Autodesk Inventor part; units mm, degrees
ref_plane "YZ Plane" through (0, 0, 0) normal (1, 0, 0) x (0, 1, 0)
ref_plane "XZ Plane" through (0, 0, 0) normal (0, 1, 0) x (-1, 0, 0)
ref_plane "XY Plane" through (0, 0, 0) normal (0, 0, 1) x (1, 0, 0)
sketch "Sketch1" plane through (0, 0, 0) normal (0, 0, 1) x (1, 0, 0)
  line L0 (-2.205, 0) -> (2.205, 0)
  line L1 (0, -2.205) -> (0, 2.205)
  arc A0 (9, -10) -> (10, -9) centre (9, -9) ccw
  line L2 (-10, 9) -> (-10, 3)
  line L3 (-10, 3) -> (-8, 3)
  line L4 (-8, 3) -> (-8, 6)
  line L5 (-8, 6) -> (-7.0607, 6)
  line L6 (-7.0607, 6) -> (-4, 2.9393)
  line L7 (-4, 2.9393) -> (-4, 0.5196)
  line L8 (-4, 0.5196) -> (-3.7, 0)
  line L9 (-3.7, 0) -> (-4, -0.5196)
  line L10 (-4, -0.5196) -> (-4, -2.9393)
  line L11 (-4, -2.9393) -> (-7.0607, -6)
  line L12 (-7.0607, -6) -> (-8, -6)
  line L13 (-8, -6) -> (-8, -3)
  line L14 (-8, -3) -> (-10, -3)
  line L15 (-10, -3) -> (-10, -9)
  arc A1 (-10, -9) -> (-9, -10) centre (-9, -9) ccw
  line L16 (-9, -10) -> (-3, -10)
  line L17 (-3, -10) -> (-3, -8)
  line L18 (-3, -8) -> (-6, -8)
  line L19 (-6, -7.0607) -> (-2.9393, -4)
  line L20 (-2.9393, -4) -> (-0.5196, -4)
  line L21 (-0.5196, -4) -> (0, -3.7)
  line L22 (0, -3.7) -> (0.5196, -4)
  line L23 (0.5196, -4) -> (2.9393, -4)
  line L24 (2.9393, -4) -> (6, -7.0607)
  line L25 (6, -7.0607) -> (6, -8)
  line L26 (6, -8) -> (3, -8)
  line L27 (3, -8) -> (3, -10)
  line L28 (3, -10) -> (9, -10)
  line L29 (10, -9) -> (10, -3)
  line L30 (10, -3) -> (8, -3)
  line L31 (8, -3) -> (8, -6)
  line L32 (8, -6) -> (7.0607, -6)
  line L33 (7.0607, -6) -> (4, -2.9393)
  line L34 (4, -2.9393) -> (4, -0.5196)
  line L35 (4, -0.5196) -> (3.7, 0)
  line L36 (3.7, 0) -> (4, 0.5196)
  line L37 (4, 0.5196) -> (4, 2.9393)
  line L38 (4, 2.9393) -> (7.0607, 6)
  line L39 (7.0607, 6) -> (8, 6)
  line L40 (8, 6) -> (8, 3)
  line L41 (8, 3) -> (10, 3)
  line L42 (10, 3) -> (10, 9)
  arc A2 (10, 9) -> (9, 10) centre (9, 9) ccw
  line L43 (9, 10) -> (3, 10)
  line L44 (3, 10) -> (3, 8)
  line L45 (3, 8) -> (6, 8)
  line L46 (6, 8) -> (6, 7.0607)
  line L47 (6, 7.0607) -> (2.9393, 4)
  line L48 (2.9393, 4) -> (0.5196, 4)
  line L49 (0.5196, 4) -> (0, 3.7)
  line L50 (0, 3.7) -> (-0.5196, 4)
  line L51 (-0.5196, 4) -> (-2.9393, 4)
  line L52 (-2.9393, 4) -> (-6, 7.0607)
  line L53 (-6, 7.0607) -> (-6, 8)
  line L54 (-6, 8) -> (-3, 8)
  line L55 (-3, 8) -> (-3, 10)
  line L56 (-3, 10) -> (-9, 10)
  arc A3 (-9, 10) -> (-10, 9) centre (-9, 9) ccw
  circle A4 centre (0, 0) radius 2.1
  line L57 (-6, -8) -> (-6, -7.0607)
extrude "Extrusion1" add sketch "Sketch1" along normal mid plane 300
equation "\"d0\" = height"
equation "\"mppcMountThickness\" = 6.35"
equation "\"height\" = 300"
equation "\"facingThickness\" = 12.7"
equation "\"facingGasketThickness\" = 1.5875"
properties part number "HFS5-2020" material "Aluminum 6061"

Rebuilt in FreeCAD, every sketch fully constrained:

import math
import FreeCAD as App
import Part
import Sketcher
from FreeCAD import Vector
Q = App.Units.Quantity

doc = App.newDocument("Part")
body = doc.addObject("PartDesign::Body", "Body")

sketch1 = body.newObject("Sketcher::SketchObject", "Sketch")
sketch1.AttachmentSupport = (doc.getObject("XY_Plane"), [""])
sketch1.MapMode = "FlatFace"
sketch1.addGeometry([
    Part.LineSegment(Vector(3, -10, 0), Vector(9, -10, 0)),
    Part.ArcOfCircle(Part.Circle(Vector(9, -9, 0), Vector(0, 0, 1), 1), math.radians(-90), math.radians(0)),
    Part.LineSegment(Vector(10, -9, 0), Vector(10, -3, 0)),
    Part.LineSegment(Vector(10, -3, 0), Vector(8, -3, 0)),
    Part.LineSegment(Vector(8, -3, 0), Vector(8, -6, 0)),
    Part.LineSegment(Vector(8, -6, 0), Vector(7.1, -6, 0)),
    Part.LineSegment(Vector(7.1, -6, 0), Vector(4, -2.9, 0)),
    Part.LineSegment(Vector(4, -2.9, 0), Vector(4, -0.5, 0)),
    Part.LineSegment(Vector(4, -0.5, 0), Vector(3.7, 0, 0)),
    Part.LineSegment(Vector(3.7, 0, 0), Vector(4, 0.5, 0)),
    Part.LineSegment(Vector(4, 0.5, 0), Vector(4, 2.9, 0)),
    Part.LineSegment(Vector(4, 2.9, 0), Vector(7.1, 6, 0)),
    Part.LineSegment(Vector(7.1, 6, 0), Vector(8, 6, 0)),
    Part.LineSegment(Vector(8, 6, 0), Vector(8, 3, 0)),
    Part.LineSegment(Vector(8, 3, 0), Vector(10, 3, 0)),
    Part.LineSegment(Vector(10, 3, 0), Vector(10, 9, 0)),
    Part.ArcOfCircle(Part.Circle(Vector(9, 9, 0), Vector(0, 0, 1), 1), math.radians(0), math.radians(90)),
    Part.LineSegment(Vector(9, 10, 0), Vector(3, 10, 0)),
    Part.LineSegment(Vector(3, 10, 0), Vector(3, 8, 0)),
    Part.LineSegment(Vector(3, 8, 0), Vector(6, 8, 0)),
    Part.LineSegment(Vector(6, 8, 0), Vector(6, 7.1, 0)),
    Part.LineSegment(Vector(6, 7.1, 0), Vector(2.9, 4, 0)),
    Part.LineSegment(Vector(2.9, 4, 0), Vector(0.5, 4, 0)),
    Part.LineSegment(Vector(0.5, 4, 0), Vector(0, 3.7, 0)),
    Part.LineSegment(Vector(0, 3.7, 0), Vector(-0.5, 4, 0)),
    Part.LineSegment(Vector(-0.5, 4, 0), Vector(-2.9, 4, 0)),
    Part.LineSegment(Vector(-2.9, 4, 0), Vector(-6, 7.1, 0)),
    Part.LineSegment(Vector(-6, 7.1, 0), Vector(-6, 8, 0)),
    Part.LineSegment(Vector(-6, 8, 0), Vector(-3, 8, 0)),
    Part.LineSegment(Vector(-3, 8, 0), Vector(-3, 10, 0)),
    Part.LineSegment(Vector(-3, 10, 0), Vector(-9, 10, 0)),
    Part.ArcOfCircle(Part.Circle(Vector(-9, 9, 0), Vector(0, 0, 1), 1), math.radians(90), math.radians(180)),
    Part.LineSegment(Vector(-10, 9, 0), Vector(-10, 3, 0)),
    Part.LineSegment(Vector(-10, 3, 0), Vector(-8, 3, 0)),
    Part.LineSegment(Vector(-8, 3, 0), Vector(-8, 6, 0)),
    Part.LineSegment(Vector(-8, 6, 0), Vector(-7.1, 6, 0)),
    Part.LineSegment(Vector(-7.1, 6, 0), Vector(-4, 2.9, 0)),
    Part.LineSegment(Vector(-4, 2.9, 0), Vector(-4, 0.5, 0)),
    Part.LineSegment(Vector(-4, 0.5, 0), Vector(-3.7, 0, 0)),
    Part.LineSegment(Vector(-3.7, 0, 0), Vector(-4, -0.5, 0)),
    Part.LineSegment(Vector(-4, -0.5, 0), Vector(-4, -2.9, 0)),
    Part.LineSegment(Vector(-4, -2.9, 0), Vector(-7.1, -6, 0)),
    Part.LineSegment(Vector(-7.1, -6, 0), Vector(-8, -6, 0)),
    Part.LineSegment(Vector(-8, -6, 0), Vector(-8, -3, 0)),
    Part.LineSegment(Vector(-8, -3, 0), Vector(-10, -3, 0)),
    Part.LineSegment(Vector(-10, -3, 0), Vector(-10, -9, 0)),
    Part.ArcOfCircle(Part.Circle(Vector(-9, -9, 0), Vector(0, 0, 1), 1), math.radians(180), math.radians(270)),
    Part.LineSegment(Vector(-9, -10, 0), Vector(-3, -10, 0)),
    Part.LineSegment(Vector(-3, -10, 0), Vector(-3, -8, 0)),
    Part.LineSegment(Vector(-3, -8, 0), Vector(-6, -8, 0)),
    Part.LineSegment(Vector(-6, -8, 0), Vector(-6, -7.1, 0)),
    Part.LineSegment(Vector(-6, -7.1, 0), Vector(-2.9, -4, 0)),
    Part.LineSegment(Vector(-2.9, -4, 0), Vector(-0.5, -4, 0)),
    Part.LineSegment(Vector(-0.5, -4, 0), Vector(0, -3.7, 0)),
    Part.LineSegment(Vector(0, -3.7, 0), Vector(0.5, -4, 0)),
    Part.LineSegment(Vector(0.5, -4, 0), Vector(2.9, -4, 0)),
    Part.LineSegment(Vector(2.9, -4, 0), Vector(6, -7.1, 0)),
    Part.LineSegment(Vector(6, -7.1, 0), Vector(6, -8, 0)),
    Part.LineSegment(Vector(6, -8, 0), Vector(3, -8, 0)),
    Part.LineSegment(Vector(3, -8, 0), Vector(3, -10, 0)),
    Part.Circle(Vector(0, 0, 0), Vector(0, 0, 1), 2.1),
], False)
sketch1.addConstraint([
    Sketcher.Constraint("Tangent", 0, 2, 1, 1),
    Sketcher.Constraint("Tangent", 1, 2, 2, 1),
    Sketcher.Constraint("Coincident", 2, 2, 3, 1),
    Sketcher.Constraint("Coincident", 3, 2, 4, 1),
    Sketcher.Constraint("Coincident", 4, 2, 5, 1),
    Sketcher.Constraint("Coincident", 5, 2, 6, 1),
    Sketcher.Constraint("Coincident", 6, 2, 7, 1),
    Sketcher.Constraint("Coincident", 7, 2, 8, 1),
    Sketcher.Constraint("Coincident", 8, 2, 9, 1),
    Sketcher.Constraint("Coincident", 9, 2, 10, 1),
    Sketcher.Constraint("Coincident", 10, 2, 11, 1),
    Sketcher.Constraint("Coincident", 11, 2, 12, 1),
    Sketcher.Constraint("Coincident", 12, 2, 13, 1),
    Sketcher.Constraint("Coincident", 13, 2, 14, 1),
    Sketcher.Constraint("Coincident", 14, 2, 15, 1),
    Sketcher.Constraint("Tangent", 15, 2, 16, 1),
    Sketcher.Constraint("Tangent", 16, 2, 17, 1),
    Sketcher.Constraint("Coincident", 17, 2, 18, 1),
    Sketcher.Constraint("Coincident", 18, 2, 19, 1),
    Sketcher.Constraint("Coincident", 19, 2, 20, 1),
    Sketcher.Constraint("Coincident", 20, 2, 21, 1),
    Sketcher.Constraint("Coincident", 21, 2, 22, 1),
    Sketcher.Constraint("Coincident", 22, 2, 23, 1),
    Sketcher.Constraint("Coincident", 23, 2, 24, 1),
    Sketcher.Constraint("Coincident", 24, 2, 25, 1),
    Sketcher.Constraint("Coincident", 25, 2, 26, 1),
    Sketcher.Constraint("Coincident", 26, 2, 27, 1),
    Sketcher.Constraint("Coincident", 27, 2, 28, 1),
    Sketcher.Constraint("Coincident", 28, 2, 29, 1),
    Sketcher.Constraint("Coincident", 29, 2, 30, 1),
    Sketcher.Constraint("Tangent", 30, 2, 31, 1),
    Sketcher.Constraint("Tangent", 31, 2, 32, 1),
    Sketcher.Constraint("Coincident", 32, 2, 33, 1),
    Sketcher.Constraint("Coincident", 33, 2, 34, 1),
    Sketcher.Constraint("Coincident", 34, 2, 35, 1),
    Sketcher.Constraint("Coincident", 35, 2, 36, 1),
    Sketcher.Constraint("Coincident", 36, 2, 37, 1),
    Sketcher.Constraint("Coincident", 37, 2, 38, 1),
    Sketcher.Constraint("Coincident", 38, 2, 39, 1),
    Sketcher.Constraint("Coincident", 39, 2, 40, 1),
    Sketcher.Constraint("Coincident", 40, 2, 41, 1),
    Sketcher.Constraint("Coincident", 41, 2, 42, 1),
    Sketcher.Constraint("Coincident", 42, 2, 43, 1),
    Sketcher.Constraint("Coincident", 43, 2, 44, 1),
    Sketcher.Constraint("Coincident", 44, 2, 45, 1),
    Sketcher.Constraint("Tangent", 45, 2, 46, 1),
    Sketcher.Constraint("Tangent", 46, 2, 47, 1),
    Sketcher.Constraint("Coincident", 47, 2, 48, 1),
    Sketcher.Constraint("Coincident", 48, 2, 49, 1),
    Sketcher.Constraint("Coincident", 49, 2, 50, 1),
    Sketcher.Constraint("Coincident", 50, 2, 51, 1),
    Sketcher.Constraint("Coincident", 51, 2, 52, 1),
    Sketcher.Constraint("Coincident", 52, 2, 53, 1),
    Sketcher.Constraint("Coincident", 53, 2, 54, 1),
    Sketcher.Constraint("Coincident", 54, 2, 55, 1),
    Sketcher.Constraint("Coincident", 55, 2, 56, 1),
    Sketcher.Constraint("Coincident", 56, 2, 57, 1),
    Sketcher.Constraint("Coincident", 57, 2, 58, 1),
    Sketcher.Constraint("Coincident", 58, 2, 59, 1),
    Sketcher.Constraint("Coincident", 59, 2, 0, 1),
    Sketcher.Constraint("Horizontal", 0),
    Sketcher.Constraint("Vertical", 2),
    Sketcher.Constraint("Horizontal", 3),
    Sketcher.Constraint("Vertical", 4),
    Sketcher.Constraint("Horizontal", 5),
    Sketcher.Constraint("Vertical", 7),
    Sketcher.Constraint("Vertical", 10),
    Sketcher.Constraint("Horizontal", 12),
    Sketcher.Constraint("Vertical", 13),
    Sketcher.Constraint("Horizontal", 14),
    Sketcher.Constraint("Vertical", 15),
    Sketcher.Constraint("Horizontal", 17),
    Sketcher.Constraint("Vertical", 18),
    Sketcher.Constraint("Horizontal", 19),
    Sketcher.Constraint("Vertical", 20),
    Sketcher.Constraint("Horizontal", 22),
    Sketcher.Constraint("Horizontal", 25),
    Sketcher.Constraint("Vertical", 27),
    Sketcher.Constraint("Horizontal", 28),
    Sketcher.Constraint("Vertical", 29),
    Sketcher.Constraint("Horizontal", 30),
    Sketcher.Constraint("Vertical", 32),
    Sketcher.Constraint("Horizontal", 33),
    Sketcher.Constraint("Vertical", 34),
    Sketcher.Constraint("Horizontal", 35),
    Sketcher.Constraint("Vertical", 37),
    Sketcher.Constraint("Vertical", 40),
    Sketcher.Constraint("Horizontal", 42),
    Sketcher.Constraint("Vertical", 43),
    Sketcher.Constraint("Horizontal", 44),
    Sketcher.Constraint("Vertical", 45),
    Sketcher.Constraint("Horizontal", 47),
    Sketcher.Constraint("Vertical", 48),
    Sketcher.Constraint("Horizontal", 49),
    Sketcher.Constraint("Vertical", 50),
    Sketcher.Constraint("Horizontal", 52),
    Sketcher.Constraint("Horizontal", 55),
    Sketcher.Constraint("Vertical", 57),
    Sketcher.Constraint("Horizontal", 58),
    Sketcher.Constraint("Vertical", 59),
    Sketcher.Constraint("Coincident", 60, 3, -1, 1),
    Sketcher.Constraint("Equal", 1, 16),
    Sketcher.Constraint("Equal", 16, 31),
    Sketcher.Constraint("Equal", 31, 46),
    Sketcher.Constraint("Symmetric", 1, 3, 31, 3, -1, 1),
    Sketcher.Constraint("Symmetric", 16, 3, 46, 3, -1, 1),
    Sketcher.Constraint("Symmetric", 3, 2, 33, 2, -1, 1),
    Sketcher.Constraint("Symmetric", 5, 2, 35, 2, -1, 1),
    Sketcher.Constraint("Symmetric", 6, 2, 36, 2, -1, 1),
    Sketcher.Constraint("Symmetric", 8, 2, 38, 2, -1, 1),
    Sketcher.Constraint("Symmetric", 9, 2, 39, 2, -1, 1),
    Sketcher.Constraint("Symmetric", 11, 2, 41, 2, -1, 1),
    Sketcher.Constraint("Symmetric", 13, 2, 43, 2, -1, 1),
    Sketcher.Constraint("Symmetric", 18, 2, 48, 2, -1, 1),
    Sketcher.Constraint("Symmetric", 20, 2, 50, 2, -1, 1),
    Sketcher.Constraint("Symmetric", 21, 2, 51, 2, -1, 1),
    Sketcher.Constraint("Symmetric", 23, 2, 53, 2, -1, 1),
    Sketcher.Constraint("Symmetric", 24, 2, 54, 2, -1, 1),
    Sketcher.Constraint("Symmetric", 26, 2, 56, 2, -1, 1),
    Sketcher.Constraint("Symmetric", 28, 2, 58, 2, -1, 1),
    Sketcher.Constraint("Symmetric", 16, 3, 31, 3, -2),
    Sketcher.Constraint("Symmetric", 22, 2, 24, 2, -2),
    Sketcher.Constraint("Symmetric", 20, 2, 26, 2, -2),
    Sketcher.Constraint("Symmetric", 18, 2, 28, 2, -2),
    Sketcher.Constraint("Symmetric", 13, 2, 33, 2, -2),
    Sketcher.Constraint("Symmetric", 11, 2, 35, 2, -2),
    Sketcher.Constraint("Symmetric", 10, 2, 36, 2, -2),
    Sketcher.Constraint("PointOnObject", 8, 2, -1),
    Sketcher.Constraint("PointOnObject", 23, 2, -2),
    Sketcher.Constraint("Perpendicular", 6, 11),
    Sketcher.Constraint("Parallel", 11, 21),
    Sketcher.Constraint("Perpendicular", 8, 23),
    Sketcher.Constraint("Perpendicular", 9, 24),
    Sketcher.Constraint("Perpendicular", 21, 26),
    Sketcher.Constraint("Perpendicular", 23, 38),
    Sketcher.Constraint("Perpendicular", 36, 41),
    Sketcher.Constraint("Perpendicular", 38, 53),
    Sketcher.Constraint("Perpendicular", 51, 56),
    Sketcher.Constraint("Equal", 47, 2),
    Sketcher.Constraint("Equal", 58, 4),
    Sketcher.Constraint("Equal", 55, 7),
    Sketcher.Constraint("Equal", 44, 18),
    Sketcher.Constraint("Equal", 42, 20),
    Sketcher.Constraint("Equal", 11, 21),
    Sketcher.Constraint("Equal", 9, 23),
    Sketcher.Constraint("Radius", 1, 1.0),
    Sketcher.Constraint("Diameter", 60, 4.2),
    Sketcher.Constraint("DistanceX", 0, 1, 0, 2, 6.0),
    Sketcher.Constraint("DistanceX", 3, 2, 3, 1, 2.0),
    Sketcher.Constraint("DistanceX", 19, 1, 19, 2, 3.0),
    Sketcher.Constraint("Angle", 8, Q("120.0007 deg")),
    Sketcher.Constraint("DistanceX", -1, 1, 1, 3, 9.0),
    Sketcher.Constraint("DistanceX", -1, 1, 6, 2, 4.0),
    Sketcher.Constraint("Distance", 8, 0.6),
    Sketcher.Constraint("DistanceX", 5, 2, 5, 1, 0.9393),
])
pad1 = body.newObject("PartDesign::Pad", "Pad")
pad1.Profile = sketch1
pad1.Length = 300
pad1.Midplane = True

doc.recompute()
